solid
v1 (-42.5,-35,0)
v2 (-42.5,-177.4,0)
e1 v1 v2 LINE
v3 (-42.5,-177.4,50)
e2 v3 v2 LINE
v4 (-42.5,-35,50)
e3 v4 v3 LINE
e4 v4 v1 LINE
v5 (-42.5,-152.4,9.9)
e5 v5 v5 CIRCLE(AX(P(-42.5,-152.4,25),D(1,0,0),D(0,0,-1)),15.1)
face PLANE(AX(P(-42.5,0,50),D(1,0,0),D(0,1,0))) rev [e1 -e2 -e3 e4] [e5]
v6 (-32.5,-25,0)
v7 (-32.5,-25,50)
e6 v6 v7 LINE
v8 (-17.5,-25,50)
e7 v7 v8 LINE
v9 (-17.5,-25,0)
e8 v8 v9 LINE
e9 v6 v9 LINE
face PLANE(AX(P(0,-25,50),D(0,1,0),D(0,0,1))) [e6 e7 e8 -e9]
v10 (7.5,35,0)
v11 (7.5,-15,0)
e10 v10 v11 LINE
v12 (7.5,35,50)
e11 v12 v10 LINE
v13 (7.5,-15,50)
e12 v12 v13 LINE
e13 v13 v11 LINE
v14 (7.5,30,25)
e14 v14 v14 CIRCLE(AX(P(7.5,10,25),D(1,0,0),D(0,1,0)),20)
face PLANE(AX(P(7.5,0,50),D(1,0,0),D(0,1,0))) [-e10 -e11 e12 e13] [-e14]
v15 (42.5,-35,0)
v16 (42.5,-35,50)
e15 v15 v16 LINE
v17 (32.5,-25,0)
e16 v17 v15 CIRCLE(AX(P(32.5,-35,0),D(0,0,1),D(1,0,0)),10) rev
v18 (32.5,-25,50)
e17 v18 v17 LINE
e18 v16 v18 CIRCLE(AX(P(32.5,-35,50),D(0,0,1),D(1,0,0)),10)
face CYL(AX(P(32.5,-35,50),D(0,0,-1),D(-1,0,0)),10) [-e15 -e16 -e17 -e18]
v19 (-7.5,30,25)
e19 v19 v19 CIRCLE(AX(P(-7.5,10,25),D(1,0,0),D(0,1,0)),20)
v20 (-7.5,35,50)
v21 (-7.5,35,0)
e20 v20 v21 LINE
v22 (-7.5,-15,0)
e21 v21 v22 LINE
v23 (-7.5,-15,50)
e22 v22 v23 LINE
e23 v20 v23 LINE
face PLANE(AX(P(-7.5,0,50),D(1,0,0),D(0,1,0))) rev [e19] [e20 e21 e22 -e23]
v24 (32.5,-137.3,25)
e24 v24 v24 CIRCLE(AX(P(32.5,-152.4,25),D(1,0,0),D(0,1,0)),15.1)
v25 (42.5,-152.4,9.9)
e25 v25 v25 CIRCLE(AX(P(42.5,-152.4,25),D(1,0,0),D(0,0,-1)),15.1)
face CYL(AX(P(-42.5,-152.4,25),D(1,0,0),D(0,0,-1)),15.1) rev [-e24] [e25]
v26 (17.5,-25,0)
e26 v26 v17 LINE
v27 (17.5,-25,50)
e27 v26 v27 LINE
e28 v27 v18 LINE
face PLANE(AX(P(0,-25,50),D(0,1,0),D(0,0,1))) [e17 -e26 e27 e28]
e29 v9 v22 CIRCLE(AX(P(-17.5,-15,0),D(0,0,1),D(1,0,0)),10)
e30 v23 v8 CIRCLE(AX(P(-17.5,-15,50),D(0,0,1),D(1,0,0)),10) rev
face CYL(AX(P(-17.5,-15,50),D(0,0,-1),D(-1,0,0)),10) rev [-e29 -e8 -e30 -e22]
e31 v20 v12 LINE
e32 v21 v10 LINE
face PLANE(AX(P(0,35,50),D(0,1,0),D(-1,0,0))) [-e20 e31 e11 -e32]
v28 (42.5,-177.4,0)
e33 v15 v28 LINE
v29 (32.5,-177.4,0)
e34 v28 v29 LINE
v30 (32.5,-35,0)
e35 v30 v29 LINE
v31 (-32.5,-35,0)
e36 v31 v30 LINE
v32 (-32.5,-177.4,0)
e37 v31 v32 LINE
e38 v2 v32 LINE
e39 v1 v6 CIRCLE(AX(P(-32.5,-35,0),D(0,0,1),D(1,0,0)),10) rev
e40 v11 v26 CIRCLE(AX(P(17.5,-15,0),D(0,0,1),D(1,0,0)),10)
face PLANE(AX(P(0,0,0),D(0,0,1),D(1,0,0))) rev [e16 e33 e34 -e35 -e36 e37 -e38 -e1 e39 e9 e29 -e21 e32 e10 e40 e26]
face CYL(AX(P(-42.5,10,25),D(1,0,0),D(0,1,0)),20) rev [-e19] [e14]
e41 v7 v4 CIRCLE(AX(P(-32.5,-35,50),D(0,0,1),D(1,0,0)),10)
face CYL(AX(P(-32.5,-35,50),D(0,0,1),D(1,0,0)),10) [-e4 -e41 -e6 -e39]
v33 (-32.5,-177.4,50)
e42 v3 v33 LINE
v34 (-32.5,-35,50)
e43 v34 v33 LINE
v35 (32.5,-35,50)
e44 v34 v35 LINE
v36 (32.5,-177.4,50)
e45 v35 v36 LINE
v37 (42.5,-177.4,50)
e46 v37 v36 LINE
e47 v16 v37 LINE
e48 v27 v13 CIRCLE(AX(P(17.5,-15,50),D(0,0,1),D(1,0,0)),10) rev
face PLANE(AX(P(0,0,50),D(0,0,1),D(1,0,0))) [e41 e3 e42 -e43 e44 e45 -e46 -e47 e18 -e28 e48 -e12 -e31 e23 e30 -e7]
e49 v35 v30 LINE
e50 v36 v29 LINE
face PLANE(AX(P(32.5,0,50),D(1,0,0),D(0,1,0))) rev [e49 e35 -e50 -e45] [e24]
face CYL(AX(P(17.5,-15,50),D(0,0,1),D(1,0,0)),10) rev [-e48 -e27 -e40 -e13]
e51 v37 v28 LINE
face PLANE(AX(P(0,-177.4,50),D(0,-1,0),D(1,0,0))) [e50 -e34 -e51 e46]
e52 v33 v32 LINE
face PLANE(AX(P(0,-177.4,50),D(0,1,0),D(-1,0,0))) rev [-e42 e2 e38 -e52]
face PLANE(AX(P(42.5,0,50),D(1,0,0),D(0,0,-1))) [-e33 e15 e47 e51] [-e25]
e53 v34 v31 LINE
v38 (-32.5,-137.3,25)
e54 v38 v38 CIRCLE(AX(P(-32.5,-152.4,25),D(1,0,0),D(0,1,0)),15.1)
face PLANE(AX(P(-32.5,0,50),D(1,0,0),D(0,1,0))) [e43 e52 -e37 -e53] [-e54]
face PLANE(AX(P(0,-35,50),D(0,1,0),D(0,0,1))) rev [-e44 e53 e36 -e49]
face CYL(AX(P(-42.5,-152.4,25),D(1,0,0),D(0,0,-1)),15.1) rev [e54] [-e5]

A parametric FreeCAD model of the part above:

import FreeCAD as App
import Part
import Sketcher

V = App.Vector


def edges_at(feature, points):
    """Names of the edges that pass closest to the given points."""
    edges = feature.Shape.Edges
    near = lambda p: min(range(len(edges)), key=lambda i: edges[i].distToShape(Part.Vertex(*p))[0])
    return sorted({f"Edge{near(p) + 1}" for p in points})

doc = App.newDocument("Part")
body = doc.addObject("PartDesign::Body", "Body")

# Sketch on XY plane
sketch1 = body.newObject("Sketcher::SketchObject", "Sketch")
sketch1.AttachmentSupport = (doc.getObject("XY_Plane"), [""])
sketch1.MapMode = "FlatFace"
sketch1.addGeometry(Part.LineSegment(V(-42, -177, 0), V(-32, -177, 0)), False)
sketch1.addGeometry(Part.LineSegment(V(-32, -177, 0), V(-32, -35, 0)), False)
sketch1.addGeometry(Part.LineSegment(V(-32, -35, 0), V(32, -35, 0)), False)
sketch1.addGeometry(Part.LineSegment(V(32, -35, 0), V(32, -177, 0)), False)
sketch1.addGeometry(Part.LineSegment(V(32, -177, 0), V(42, -177, 0)), False)
sketch1.addGeometry(Part.LineSegment(V(42, -177, 0), V(42, -25, 0)), False)
sketch1.addGeometry(Part.LineSegment(V(42, -25, 0), V(8, -25, 0)), False)
sketch1.addGeometry(Part.LineSegment(V(8, -25, 0), V(8, 35, 0)), False)
sketch1.addGeometry(Part.LineSegment(V(8, 35, 0), V(-8, 35, 0)), False)
sketch1.addGeometry(Part.LineSegment(V(-8, 35, 0), V(-8, -25, 0)), False)
sketch1.addGeometry(Part.LineSegment(V(-8, -25, 0), V(-42, -25, 0)), False)
sketch1.addGeometry(Part.LineSegment(V(-42, -25, 0), V(-42, -177, 0)), False)
sketch1.addConstraint(Sketcher.Constraint("Coincident", 0, 2, 1, 1))
sketch1.addConstraint(Sketcher.Constraint("Coincident", 1, 2, 2, 1))
sketch1.addConstraint(Sketcher.Constraint("Coincident", 2, 2, 3, 1))
sketch1.addConstraint(Sketcher.Constraint("Coincident", 3, 2, 4, 1))
sketch1.addConstraint(Sketcher.Constraint("Coincident", 4, 2, 5, 1))
sketch1.addConstraint(Sketcher.Constraint("Coincident", 5, 2, 6, 1))
sketch1.addConstraint(Sketcher.Constraint("Coincident", 6, 2, 7, 1))
sketch1.addConstraint(Sketcher.Constraint("Coincident", 7, 2, 8, 1))
sketch1.addConstraint(Sketcher.Constraint("Coincident", 8, 2, 9, 1))
sketch1.addConstraint(Sketcher.Constraint("Coincident", 9, 2, 10, 1))
sketch1.addConstraint(Sketcher.Constraint("Coincident", 10, 2, 11, 1))
sketch1.addConstraint(Sketcher.Constraint("Coincident", 11, 2, 0, 1))
sketch1.addConstraint(Sketcher.Constraint("Horizontal", 0))
sketch1.addConstraint(Sketcher.Constraint("Vertical", 1))
sketch1.addConstraint(Sketcher.Constraint("Horizontal", 2))
sketch1.addConstraint(Sketcher.Constraint("Vertical", 3))
sketch1.addConstraint(Sketcher.Constraint("Horizontal", 4))
sketch1.addConstraint(Sketcher.Constraint("Vertical", 5))
sketch1.addConstraint(Sketcher.Constraint("Horizontal", 6))
sketch1.addConstraint(Sketcher.Constraint("Vertical", 7))
sketch1.addConstraint(Sketcher.Constraint("Horizontal", 8))
sketch1.addConstraint(Sketcher.Constraint("Vertical", 9))
sketch1.addConstraint(Sketcher.Constraint("Horizontal", 10))
sketch1.addConstraint(Sketcher.Constraint("Vertical", 11))
sketch1.addConstraint(Sketcher.Constraint("Symmetric", 0, 2, 3, 2, -2))
sketch1.addConstraint(Sketcher.Constraint("Symmetric", 6, 2, 9, 2, -2))
sketch1.addConstraint(Sketcher.Constraint("Equal", 0, 4))
sketch1.addConstraint(Sketcher.Constraint("DistanceX", 0, 1, 0, 2, 10.0))
sketch1.addConstraint(Sketcher.Constraint("DistanceX", 2, 1, 2, 2, 65.0))
sketch1.addConstraint(Sketcher.Constraint("DistanceX", 6, 2, 6, 1, 35.0))
sketch1.addConstraint(Sketcher.Constraint("DistanceY", 7, 1, 7, 2, 60.0))
sketch1.addConstraint(Sketcher.Constraint("DistanceY", 1, 1, 1, 2, 142.4))
sketch1.addConstraint(Sketcher.Constraint("DistanceY", 5, 1, 5, 2, 152.4))
sketch1.addConstraint(Sketcher.Constraint("DistanceY", 1, 2, -1, 1, 35.0))
pad1 = body.newObject("PartDesign::Pad", "Pad")
pad1.Profile = sketch1
pad1.Length = 50
doc.recompute()

fillet = body.newObject("PartDesign::Fillet", "Fillet")
fillet.Base = (pad1, edges_at(pad1, [
    (-42.5, -25, 25),
    (-7.5, -25, 25),
    (7.5, -25, 25),
    (42.5, -25, 25),
]))
fillet.Radius = 10

# Sketch on YZ plane
sketch2 = body.newObject("Sketcher::SketchObject", "Sketch001")
sketch2.AttachmentSupport = (doc.getObject("YZ_Plane"), [""])
sketch2.MapMode = "FlatFace"
sketch2.AttachmentOffset = App.Placement(V(0, 0, 7.5), App.Rotation())
sketch2.addGeometry(Part.Circle(V(10, 25, 0), V(0, 0, 1), 20), False)
sketch2.addConstraint(Sketcher.Constraint("Diameter", 0, 40.0))
sketch2.addConstraint(Sketcher.Constraint("DistanceX", -1, 1, 0, 3, 10.0))
sketch2.addConstraint(Sketcher.Constraint("DistanceY", -1, 1, 0, 3, 25.0))
pocket1 = body.newObject("PartDesign::Pocket", "Pocket")
pocket1.Profile = sketch2
pocket1.Type = "ThroughAll"
pocket1.Midplane = True

# Sketch on YZ plane
sketch3 = body.newObject("Sketcher::SketchObject", "Sketch002")
sketch3.AttachmentSupport = (doc.getObject("YZ_Plane"), [""])
sketch3.MapMode = "FlatFace"
sketch3.AttachmentOffset = App.Placement(V(0, 0, 42.5), App.Rotation())
sketch3.addGeometry(Part.Circle(V(-152, 25, 0), V(0, 0, 1), 15), False)
sketch3.addConstraint(Sketcher.Constraint("Diameter", 0, 30.2))
sketch3.addConstraint(Sketcher.Constraint("DistanceY", -1, 1, 0, 3, 25.0))
sketch3.addConstraint(Sketcher.Constraint("DistanceX", 0, 3, -1, 1, 152.4))
pocket2 = body.newObject("PartDesign::Pocket", "Pocket001")
pocket2.Profile = sketch3
pocket2.Type = "ThroughAll"
pocket2.Midplane = True

doc.recompute()
